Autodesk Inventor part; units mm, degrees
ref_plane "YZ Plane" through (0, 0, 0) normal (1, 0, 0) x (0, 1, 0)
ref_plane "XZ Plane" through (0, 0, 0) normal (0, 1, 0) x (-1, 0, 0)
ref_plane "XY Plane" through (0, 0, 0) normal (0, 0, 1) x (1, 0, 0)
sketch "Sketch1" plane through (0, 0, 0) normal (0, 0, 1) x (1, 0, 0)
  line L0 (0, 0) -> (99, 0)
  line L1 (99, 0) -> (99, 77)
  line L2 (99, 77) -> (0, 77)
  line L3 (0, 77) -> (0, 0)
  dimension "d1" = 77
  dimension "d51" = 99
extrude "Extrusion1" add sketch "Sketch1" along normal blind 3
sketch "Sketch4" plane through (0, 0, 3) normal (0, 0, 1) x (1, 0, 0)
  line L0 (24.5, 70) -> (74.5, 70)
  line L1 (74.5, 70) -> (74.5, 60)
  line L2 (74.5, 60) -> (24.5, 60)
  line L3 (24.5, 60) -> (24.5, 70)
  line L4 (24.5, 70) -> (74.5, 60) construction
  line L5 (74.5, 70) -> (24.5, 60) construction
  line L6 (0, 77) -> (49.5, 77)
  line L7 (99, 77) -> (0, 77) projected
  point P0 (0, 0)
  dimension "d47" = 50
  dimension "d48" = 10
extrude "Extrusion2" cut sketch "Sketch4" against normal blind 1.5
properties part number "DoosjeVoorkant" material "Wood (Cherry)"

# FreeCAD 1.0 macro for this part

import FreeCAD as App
import Part
import Sketcher


def add_polygon(sketch, points):
    """Adds a closed chain of lines whose ends are joined by coincident constraints."""
    first, n = sketch.GeometryCount, len(points)
    for a, b in zip(points, points[1:] + points[:1]):
        sketch.addGeometry(Part.LineSegment(App.Vector(*a, 0), App.Vector(*b, 0)), False)
    for i in range(n):
        sketch.addConstraint(Sketcher.Constraint("Coincident", first + i, 2, first + (i + 1) % n, 1))

doc = App.newDocument("Part")
body = doc.addObject("PartDesign::Body", "Body")

# Sketch on XY plane
sketch1 = doc.addObject("Sketcher::SketchObject", "Sketch")
body.addObject(sketch1)
sketch1.AttachmentSupport = (doc.XY_Plane, [""])
sketch1.MapMode = "FlatFace"
add_polygon(sketch1, [(0, 77), (0, 0), (99, 0), (99, 77)])  # lines 0-3
sketch1.addConstraint([
    Sketcher.Constraint("Vertical", 0),
    Sketcher.Constraint("Horizontal", 1),
    Sketcher.Constraint("Vertical", 2),
    Sketcher.Constraint("Horizontal", 3),
    Sketcher.Constraint("Coincident", 0, 2, -1, 1),
    Sketcher.Constraint("DistanceX", 1, 1, 1, 2, 99.0),
    Sketcher.Constraint("DistanceY", 0, 2, 0, 1, 77.0),
])
pad1 = doc.addObject("PartDesign::Pad", "Pad")
body.addObject(pad1)
pad1.Profile = sketch1
pad1.Length = 3

# Sketch on XY plane
sketch2 = doc.addObject("Sketcher::SketchObject", "Sketch001")
body.addObject(sketch2)
sketch2.AttachmentSupport = (doc.XY_Plane, [""])
sketch2.MapMode = "FlatFace"
sketch2.AttachmentOffset = App.Placement(App.Vector(0, 0, 3), App.Rotation())
add_polygon(sketch2, [(74, 70), (24, 70), (24, 60), (74, 60)])  # lines 0-3
sketch2.addConstraint([
    Sketcher.Constraint("Horizontal", 0),
    Sketcher.Constraint("Vertical", 1),
    Sketcher.Constraint("Horizontal", 2),
    Sketcher.Constraint("Vertical", 3),
    Sketcher.Constraint("DistanceX", 0, 2, 0, 1, 50.0),
    Sketcher.Constraint("DistanceY", 1, 2, 1, 1, 10.0),
    Sketcher.Constraint("DistanceY", -1, 1, 0, 2, 70.0),
    Sketcher.Constraint("DistanceX", -1, 1, 0, 2, 24.5),
])
pocket1 = doc.addObject("PartDesign::Pocket", "Pocket")
body.addObject(pocket1)
pocket1.Profile = sketch2
pocket1.Length = 1.5

doc.recompute()
